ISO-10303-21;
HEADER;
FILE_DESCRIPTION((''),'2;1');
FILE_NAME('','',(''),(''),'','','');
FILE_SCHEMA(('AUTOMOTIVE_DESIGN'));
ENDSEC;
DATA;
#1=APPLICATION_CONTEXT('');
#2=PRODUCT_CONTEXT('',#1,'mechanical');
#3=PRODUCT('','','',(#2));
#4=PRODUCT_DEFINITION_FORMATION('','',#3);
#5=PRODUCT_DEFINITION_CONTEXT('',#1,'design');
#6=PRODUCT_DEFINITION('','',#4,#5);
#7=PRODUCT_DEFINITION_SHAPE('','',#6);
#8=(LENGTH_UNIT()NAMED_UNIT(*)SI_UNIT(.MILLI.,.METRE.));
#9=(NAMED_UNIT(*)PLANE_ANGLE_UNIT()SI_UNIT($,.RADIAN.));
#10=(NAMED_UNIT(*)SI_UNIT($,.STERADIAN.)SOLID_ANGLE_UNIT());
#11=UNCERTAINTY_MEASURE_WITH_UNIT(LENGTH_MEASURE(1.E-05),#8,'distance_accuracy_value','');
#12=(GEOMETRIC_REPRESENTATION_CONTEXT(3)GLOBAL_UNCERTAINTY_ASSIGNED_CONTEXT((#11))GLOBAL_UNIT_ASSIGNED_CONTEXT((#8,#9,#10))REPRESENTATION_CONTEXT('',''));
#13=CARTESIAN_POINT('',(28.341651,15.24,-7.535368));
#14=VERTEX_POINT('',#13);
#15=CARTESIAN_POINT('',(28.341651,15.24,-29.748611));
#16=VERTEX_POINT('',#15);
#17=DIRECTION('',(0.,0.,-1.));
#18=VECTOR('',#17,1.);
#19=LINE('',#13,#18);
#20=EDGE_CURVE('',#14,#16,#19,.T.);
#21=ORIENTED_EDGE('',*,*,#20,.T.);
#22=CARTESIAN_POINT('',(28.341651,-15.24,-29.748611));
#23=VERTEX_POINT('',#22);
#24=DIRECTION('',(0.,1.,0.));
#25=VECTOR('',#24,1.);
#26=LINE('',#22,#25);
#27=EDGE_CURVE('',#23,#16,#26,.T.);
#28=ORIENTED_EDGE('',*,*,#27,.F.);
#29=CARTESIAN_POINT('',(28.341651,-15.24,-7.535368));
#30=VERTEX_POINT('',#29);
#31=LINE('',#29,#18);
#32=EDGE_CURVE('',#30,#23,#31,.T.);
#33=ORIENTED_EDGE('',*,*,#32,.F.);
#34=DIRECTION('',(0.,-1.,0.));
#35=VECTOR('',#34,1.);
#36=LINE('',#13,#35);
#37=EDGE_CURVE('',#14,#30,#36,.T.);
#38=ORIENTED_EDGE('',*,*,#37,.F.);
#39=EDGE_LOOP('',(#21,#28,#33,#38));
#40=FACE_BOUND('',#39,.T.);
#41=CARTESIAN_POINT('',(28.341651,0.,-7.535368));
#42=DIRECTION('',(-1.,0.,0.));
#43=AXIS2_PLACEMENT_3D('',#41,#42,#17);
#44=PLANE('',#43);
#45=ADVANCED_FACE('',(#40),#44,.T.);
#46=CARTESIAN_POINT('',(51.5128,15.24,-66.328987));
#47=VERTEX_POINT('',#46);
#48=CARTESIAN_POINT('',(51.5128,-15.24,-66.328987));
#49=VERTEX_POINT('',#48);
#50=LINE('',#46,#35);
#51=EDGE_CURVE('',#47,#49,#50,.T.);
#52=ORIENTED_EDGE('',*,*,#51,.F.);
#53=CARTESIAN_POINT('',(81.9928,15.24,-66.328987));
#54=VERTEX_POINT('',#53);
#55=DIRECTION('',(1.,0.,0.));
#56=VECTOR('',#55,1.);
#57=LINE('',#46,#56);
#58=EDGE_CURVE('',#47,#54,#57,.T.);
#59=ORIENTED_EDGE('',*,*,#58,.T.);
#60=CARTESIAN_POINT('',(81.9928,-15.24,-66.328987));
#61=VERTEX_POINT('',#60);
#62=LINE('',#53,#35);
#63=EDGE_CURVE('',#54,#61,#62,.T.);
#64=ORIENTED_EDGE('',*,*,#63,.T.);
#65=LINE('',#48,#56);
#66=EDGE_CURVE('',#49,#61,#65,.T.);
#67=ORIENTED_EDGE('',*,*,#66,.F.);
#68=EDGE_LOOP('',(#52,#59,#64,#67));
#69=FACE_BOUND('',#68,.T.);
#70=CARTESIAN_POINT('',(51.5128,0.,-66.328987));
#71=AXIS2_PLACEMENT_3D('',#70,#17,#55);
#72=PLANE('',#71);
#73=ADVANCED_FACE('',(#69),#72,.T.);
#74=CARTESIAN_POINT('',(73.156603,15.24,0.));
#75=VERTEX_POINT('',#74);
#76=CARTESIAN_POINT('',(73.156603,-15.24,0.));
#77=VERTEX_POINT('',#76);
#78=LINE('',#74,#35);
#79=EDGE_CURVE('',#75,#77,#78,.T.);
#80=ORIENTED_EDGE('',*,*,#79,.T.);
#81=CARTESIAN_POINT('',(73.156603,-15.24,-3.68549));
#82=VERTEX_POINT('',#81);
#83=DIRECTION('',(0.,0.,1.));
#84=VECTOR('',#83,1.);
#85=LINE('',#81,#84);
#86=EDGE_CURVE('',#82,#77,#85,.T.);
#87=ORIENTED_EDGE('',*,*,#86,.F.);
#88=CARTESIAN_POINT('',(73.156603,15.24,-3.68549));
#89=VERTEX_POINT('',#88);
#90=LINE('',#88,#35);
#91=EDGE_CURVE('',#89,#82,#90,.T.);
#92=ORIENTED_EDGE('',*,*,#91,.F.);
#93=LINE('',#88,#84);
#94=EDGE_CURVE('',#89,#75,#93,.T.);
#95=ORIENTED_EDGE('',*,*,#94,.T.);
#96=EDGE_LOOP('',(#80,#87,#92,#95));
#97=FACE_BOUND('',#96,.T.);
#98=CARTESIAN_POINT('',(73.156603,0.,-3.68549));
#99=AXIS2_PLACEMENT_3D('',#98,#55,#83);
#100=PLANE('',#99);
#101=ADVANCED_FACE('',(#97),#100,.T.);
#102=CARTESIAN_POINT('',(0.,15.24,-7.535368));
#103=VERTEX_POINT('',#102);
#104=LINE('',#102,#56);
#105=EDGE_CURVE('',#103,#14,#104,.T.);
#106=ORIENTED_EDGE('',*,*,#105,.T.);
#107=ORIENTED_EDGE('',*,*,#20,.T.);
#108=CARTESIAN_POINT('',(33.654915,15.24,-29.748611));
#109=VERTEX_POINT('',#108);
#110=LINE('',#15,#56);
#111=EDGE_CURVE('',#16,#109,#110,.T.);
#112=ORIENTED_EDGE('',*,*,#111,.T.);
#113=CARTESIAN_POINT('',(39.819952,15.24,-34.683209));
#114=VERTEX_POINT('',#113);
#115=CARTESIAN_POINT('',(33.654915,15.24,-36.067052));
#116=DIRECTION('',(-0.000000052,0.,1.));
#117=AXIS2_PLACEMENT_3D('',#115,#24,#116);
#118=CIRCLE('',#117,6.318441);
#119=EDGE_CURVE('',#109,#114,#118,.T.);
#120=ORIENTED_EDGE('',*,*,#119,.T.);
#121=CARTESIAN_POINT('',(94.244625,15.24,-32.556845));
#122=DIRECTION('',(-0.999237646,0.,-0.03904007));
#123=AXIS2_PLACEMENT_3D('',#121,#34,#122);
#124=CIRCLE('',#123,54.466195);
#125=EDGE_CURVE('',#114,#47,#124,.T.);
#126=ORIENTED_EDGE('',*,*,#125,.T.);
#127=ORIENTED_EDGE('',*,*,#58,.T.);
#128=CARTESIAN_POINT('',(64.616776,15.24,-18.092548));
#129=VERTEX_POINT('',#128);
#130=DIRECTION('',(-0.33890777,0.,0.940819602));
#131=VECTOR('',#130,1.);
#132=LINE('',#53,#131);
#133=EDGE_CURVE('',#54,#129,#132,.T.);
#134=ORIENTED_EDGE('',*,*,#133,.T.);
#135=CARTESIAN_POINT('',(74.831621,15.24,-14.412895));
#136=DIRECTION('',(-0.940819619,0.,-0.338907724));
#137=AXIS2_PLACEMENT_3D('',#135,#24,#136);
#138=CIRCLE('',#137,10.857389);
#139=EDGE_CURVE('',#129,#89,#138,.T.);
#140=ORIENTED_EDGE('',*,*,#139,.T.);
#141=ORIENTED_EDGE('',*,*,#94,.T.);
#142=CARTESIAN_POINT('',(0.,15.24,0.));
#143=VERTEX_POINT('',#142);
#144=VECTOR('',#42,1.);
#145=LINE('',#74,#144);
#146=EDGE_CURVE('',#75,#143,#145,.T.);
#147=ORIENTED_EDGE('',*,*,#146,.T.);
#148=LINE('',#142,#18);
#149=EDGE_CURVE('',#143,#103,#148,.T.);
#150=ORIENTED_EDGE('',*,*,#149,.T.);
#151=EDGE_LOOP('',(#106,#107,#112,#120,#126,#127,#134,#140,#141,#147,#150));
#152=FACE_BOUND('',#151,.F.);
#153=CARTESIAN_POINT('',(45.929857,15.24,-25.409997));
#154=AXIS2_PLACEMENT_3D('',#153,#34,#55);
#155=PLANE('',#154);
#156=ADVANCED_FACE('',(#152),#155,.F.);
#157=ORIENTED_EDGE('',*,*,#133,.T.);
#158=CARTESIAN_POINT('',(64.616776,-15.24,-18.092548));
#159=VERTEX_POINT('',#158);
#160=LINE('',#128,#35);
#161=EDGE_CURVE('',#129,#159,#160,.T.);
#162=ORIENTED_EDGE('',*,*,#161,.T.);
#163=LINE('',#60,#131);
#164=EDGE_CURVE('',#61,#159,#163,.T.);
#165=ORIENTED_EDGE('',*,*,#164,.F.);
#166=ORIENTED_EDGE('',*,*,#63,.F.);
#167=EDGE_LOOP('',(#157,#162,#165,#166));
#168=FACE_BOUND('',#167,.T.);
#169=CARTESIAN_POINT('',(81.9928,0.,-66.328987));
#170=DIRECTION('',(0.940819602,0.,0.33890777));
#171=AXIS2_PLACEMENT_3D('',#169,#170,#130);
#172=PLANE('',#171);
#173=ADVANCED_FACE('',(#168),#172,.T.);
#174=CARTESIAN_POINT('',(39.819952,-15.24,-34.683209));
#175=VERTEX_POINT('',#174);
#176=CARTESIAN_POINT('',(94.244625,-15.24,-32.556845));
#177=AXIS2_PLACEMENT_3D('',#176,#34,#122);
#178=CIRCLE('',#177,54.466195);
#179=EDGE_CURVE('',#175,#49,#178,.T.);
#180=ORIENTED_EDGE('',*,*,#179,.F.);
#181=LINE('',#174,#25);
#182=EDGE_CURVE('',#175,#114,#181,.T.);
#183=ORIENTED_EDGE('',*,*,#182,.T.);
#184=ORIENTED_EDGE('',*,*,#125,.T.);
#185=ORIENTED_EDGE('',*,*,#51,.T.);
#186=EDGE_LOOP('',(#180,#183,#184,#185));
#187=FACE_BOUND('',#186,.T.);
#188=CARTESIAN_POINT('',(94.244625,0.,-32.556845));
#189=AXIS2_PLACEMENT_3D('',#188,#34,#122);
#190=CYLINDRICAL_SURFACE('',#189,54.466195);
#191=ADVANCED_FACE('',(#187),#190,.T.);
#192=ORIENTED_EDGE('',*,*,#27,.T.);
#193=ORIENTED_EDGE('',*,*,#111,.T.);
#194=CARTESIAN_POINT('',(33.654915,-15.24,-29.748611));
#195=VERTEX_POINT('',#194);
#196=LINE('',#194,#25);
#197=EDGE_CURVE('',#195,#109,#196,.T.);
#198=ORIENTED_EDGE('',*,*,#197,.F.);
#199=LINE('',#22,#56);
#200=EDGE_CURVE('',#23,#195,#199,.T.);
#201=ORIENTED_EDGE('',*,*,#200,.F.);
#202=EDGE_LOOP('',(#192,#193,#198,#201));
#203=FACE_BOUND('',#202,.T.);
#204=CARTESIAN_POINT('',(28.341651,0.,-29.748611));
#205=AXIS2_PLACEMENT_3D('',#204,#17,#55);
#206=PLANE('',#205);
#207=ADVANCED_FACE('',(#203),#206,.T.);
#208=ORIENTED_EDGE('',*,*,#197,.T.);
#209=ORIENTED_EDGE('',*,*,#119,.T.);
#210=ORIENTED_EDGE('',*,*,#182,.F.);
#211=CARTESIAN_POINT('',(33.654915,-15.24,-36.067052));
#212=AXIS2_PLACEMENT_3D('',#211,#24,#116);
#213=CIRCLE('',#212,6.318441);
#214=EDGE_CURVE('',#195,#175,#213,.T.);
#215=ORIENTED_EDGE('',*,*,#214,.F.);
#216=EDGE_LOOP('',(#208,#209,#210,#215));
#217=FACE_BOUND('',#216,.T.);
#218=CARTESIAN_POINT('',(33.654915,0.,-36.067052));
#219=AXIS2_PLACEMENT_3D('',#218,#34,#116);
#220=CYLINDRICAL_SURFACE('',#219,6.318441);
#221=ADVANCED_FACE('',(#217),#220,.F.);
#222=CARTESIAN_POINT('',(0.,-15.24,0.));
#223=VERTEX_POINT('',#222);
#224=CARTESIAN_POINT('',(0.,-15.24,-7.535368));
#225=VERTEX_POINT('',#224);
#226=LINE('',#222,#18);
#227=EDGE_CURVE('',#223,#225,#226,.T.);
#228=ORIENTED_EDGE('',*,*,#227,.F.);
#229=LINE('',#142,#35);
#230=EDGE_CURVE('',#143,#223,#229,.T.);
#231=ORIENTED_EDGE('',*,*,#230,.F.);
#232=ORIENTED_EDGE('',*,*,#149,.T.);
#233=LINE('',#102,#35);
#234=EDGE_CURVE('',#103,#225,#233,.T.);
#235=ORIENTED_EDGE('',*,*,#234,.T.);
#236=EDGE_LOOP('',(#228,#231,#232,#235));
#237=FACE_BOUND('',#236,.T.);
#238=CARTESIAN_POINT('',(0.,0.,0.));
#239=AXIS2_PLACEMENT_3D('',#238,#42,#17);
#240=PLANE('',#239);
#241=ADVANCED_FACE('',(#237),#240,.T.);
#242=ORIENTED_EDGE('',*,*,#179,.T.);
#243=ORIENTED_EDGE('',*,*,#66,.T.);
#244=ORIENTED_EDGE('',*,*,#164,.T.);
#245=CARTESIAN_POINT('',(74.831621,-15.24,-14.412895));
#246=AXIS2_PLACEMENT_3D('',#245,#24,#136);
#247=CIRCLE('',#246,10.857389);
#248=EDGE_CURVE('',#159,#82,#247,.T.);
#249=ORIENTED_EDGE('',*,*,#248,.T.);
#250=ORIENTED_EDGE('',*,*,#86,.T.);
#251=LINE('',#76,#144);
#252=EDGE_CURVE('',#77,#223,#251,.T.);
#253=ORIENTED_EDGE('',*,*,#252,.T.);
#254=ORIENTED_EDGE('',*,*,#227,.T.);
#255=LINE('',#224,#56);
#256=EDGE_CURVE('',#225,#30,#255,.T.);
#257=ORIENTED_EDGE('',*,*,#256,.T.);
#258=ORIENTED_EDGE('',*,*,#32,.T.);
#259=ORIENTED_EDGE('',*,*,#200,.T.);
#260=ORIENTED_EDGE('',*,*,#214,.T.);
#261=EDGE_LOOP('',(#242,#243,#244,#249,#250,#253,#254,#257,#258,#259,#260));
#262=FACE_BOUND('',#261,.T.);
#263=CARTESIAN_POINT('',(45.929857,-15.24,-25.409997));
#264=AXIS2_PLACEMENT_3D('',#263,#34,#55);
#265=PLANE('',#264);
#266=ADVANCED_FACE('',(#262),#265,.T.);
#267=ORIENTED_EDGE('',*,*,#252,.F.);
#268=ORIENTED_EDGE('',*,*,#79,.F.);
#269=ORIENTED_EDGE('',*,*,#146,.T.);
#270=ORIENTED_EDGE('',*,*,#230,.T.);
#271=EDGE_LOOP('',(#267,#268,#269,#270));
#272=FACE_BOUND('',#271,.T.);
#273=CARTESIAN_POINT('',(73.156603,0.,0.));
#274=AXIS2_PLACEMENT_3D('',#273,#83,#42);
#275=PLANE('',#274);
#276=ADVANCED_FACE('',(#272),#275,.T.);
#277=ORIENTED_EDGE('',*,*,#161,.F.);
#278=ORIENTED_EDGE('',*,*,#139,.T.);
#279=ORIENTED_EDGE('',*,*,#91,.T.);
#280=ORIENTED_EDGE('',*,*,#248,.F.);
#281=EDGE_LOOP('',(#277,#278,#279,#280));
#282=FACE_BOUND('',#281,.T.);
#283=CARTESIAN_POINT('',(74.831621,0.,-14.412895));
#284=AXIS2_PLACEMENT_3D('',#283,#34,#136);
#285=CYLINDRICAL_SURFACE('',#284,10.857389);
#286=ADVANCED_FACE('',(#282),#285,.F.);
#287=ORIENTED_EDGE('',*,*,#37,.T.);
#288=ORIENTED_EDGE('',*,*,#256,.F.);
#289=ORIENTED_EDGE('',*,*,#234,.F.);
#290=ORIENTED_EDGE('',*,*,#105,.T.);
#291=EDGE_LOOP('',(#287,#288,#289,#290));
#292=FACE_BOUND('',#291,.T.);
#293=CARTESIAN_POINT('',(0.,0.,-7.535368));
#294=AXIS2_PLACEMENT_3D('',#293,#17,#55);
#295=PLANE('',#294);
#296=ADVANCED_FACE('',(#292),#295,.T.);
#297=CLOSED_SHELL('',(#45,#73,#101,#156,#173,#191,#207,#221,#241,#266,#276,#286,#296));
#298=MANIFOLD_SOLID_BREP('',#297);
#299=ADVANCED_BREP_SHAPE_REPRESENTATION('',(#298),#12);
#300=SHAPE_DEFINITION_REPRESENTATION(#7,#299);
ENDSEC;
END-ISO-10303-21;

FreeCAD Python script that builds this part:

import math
import FreeCAD as App
import Part
import Sketcher

V = App.Vector
Q = App.Units.Quantity

doc = App.newDocument("Part")
body = doc.addObject("PartDesign::Body", "Body")

# Sketch on XZ plane
sketch1 = body.newObject("Sketcher::SketchObject", "Sketch")
sketch1.AttachmentSupport = (doc.getObject("XZ_Plane"), [""])
sketch1.MapMode = "FlatFace"
sketch1.addGeometry(Part.ArcOfCircle(Part.Circle(V(94.244625, -32.556845, 0), V(0, 0, 1), 54.466195), math.radians(-177.7626), math.radians(-141.679708)), False)
sketch1.addGeometry(Part.LineSegment(V(51.5128, -66.328987, 0), V(81.9928, -66.328987, 0)), False)
sketch1.addGeometry(Part.LineSegment(V(81.9928, -66.328987, 0), V(64.616776, -18.092548, 0)), False)
sketch1.addGeometry(Part.ArcOfCircle(Part.Circle(V(74.831621, -14.412895, 0), V(0, 0, 1), 10.857389), math.radians(98.874719), math.radians(199.810341)), False)
sketch1.addGeometry(Part.LineSegment(V(73.156603, -3.68549, 0), V(73.156603, 0, 0)), False)
sketch1.addGeometry(Part.LineSegment(V(73.156603, 0, 0), V(0, 0, 0)), False)
sketch1.addGeometry(Part.LineSegment(V(0, 0, 0), V(0, -7.535368, 0)), False)
sketch1.addGeometry(Part.LineSegment(V(0, -7.535368, 0), V(28.341651, -7.535368, 0)), False)
sketch1.addGeometry(Part.LineSegment(V(28.341651, -7.535368, 0), V(28.341651, -29.748611, 0)), False)
sketch1.addGeometry(Part.LineSegment(V(28.341651, -29.748611, 0), V(33.654915, -29.748611, 0)), False)
sketch1.addGeometry(Part.ArcOfCircle(Part.Circle(V(33.654915, -36.067052, 0), V(0, 0, 1), 6.318441), math.radians(12.651277), math.radians(90.000003)), False)
sketch1.addConstraint(Sketcher.Constraint("Coincident", 0, 2, 1, 1))
sketch1.addConstraint(Sketcher.Constraint("Coincident", 1, 2, 2, 1))
sketch1.addConstraint(Sketcher.Constraint("Tangent", 2, 2, 3, 2))
sketch1.addConstraint(Sketcher.Constraint("Coincident", 3, 1, 4, 1))
sketch1.addConstraint(Sketcher.Constraint("Coincident", 4, 2, 5, 1))
sketch1.addConstraint(Sketcher.Constraint("Coincident", 5, 2, 6, 1))
sketch1.addConstraint(Sketcher.Constraint("Coincident", 6, 2, 7, 1))
sketch1.addConstraint(Sketcher.Constraint("Coincident", 7, 2, 8, 1))
sketch1.addConstraint(Sketcher.Constraint("Coincident", 8, 2, 9, 1))
sketch1.addConstraint(Sketcher.Constraint("Tangent", 9, 2, 10, 2))
sketch1.addConstraint(Sketcher.Constraint("Coincident", 10, 1, 0, 1))
sketch1.addConstraint(Sketcher.Constraint("Horizontal", 1))
sketch1.addConstraint(Sketcher.Constraint("Vertical", 4))
sketch1.addConstraint(Sketcher.Constraint("Horizontal", 5))
sketch1.addConstraint(Sketcher.Constraint("Vertical", 6))
sketch1.addConstraint(Sketcher.Constraint("Horizontal", 7))
sketch1.addConstraint(Sketcher.Constraint("Vertical", 8))
sketch1.addConstraint(Sketcher.Constraint("Horizontal", 9))
sketch1.addConstraint(Sketcher.Constraint("Coincident", 5, 2, -1, 1))
sketch1.addConstraint(Sketcher.Constraint("DistanceX", 1, 1, 1, 2, Q("1.2 in")))
sketch1.addConstraint(Sketcher.Constraint("Radius", 3, Q("10.857389 mm")))
sketch1.addConstraint(Sketcher.Constraint("Radius", 10, Q("6.318441 mm")))
sketch1.addConstraint(Sketcher.Constraint("Radius", 0, Q("54.466195 mm")))
sketch1.addConstraint(Sketcher.Constraint("DistanceY", 8, 2, 2, 2, Q("0.4589001 in")))
sketch1.addConstraint(Sketcher.Constraint("DistanceX", 7, 1, 7, 2, Q("28.341651 mm")))
sketch1.addConstraint(Sketcher.Constraint("DistanceY", 4, 1, 4, 2, Q("3.68549 mm")))
sketch1.addConstraint(Sketcher.Constraint("DistanceX", -1, 1, 0, 2, Q("51.5128 mm")))
sketch1.addConstraint(Sketcher.Constraint("DistanceX", 8, 2, 10, 1, Q("11.478301 mm")))
sketch1.addConstraint(Sketcher.Constraint("DistanceX", 5, 2, 5, 1, Q("73.156603 mm")))
sketch1.addConstraint(Sketcher.Constraint("DistanceX", 9, 1, 9, 2, Q("5.313264 mm")))
sketch1.addConstraint(Sketcher.Constraint("DistanceY", 6, 2, 6, 1, Q("7.535368 mm")))
sketch1.addConstraint(Sketcher.Constraint("DistanceY", 8, 2, 8, 1, Q("22.213243 mm")))
sketch1.addConstraint(Sketcher.Constraint("DistanceX", -1, 1, 3, 3, Q("74.831621 mm")))
pad1 = body.newObject("PartDesign::Pad", "Pad")
pad1.Profile = sketch1
pad1.Length = Q("1.2 in")
pad1.Midplane = True

doc.recompute()
